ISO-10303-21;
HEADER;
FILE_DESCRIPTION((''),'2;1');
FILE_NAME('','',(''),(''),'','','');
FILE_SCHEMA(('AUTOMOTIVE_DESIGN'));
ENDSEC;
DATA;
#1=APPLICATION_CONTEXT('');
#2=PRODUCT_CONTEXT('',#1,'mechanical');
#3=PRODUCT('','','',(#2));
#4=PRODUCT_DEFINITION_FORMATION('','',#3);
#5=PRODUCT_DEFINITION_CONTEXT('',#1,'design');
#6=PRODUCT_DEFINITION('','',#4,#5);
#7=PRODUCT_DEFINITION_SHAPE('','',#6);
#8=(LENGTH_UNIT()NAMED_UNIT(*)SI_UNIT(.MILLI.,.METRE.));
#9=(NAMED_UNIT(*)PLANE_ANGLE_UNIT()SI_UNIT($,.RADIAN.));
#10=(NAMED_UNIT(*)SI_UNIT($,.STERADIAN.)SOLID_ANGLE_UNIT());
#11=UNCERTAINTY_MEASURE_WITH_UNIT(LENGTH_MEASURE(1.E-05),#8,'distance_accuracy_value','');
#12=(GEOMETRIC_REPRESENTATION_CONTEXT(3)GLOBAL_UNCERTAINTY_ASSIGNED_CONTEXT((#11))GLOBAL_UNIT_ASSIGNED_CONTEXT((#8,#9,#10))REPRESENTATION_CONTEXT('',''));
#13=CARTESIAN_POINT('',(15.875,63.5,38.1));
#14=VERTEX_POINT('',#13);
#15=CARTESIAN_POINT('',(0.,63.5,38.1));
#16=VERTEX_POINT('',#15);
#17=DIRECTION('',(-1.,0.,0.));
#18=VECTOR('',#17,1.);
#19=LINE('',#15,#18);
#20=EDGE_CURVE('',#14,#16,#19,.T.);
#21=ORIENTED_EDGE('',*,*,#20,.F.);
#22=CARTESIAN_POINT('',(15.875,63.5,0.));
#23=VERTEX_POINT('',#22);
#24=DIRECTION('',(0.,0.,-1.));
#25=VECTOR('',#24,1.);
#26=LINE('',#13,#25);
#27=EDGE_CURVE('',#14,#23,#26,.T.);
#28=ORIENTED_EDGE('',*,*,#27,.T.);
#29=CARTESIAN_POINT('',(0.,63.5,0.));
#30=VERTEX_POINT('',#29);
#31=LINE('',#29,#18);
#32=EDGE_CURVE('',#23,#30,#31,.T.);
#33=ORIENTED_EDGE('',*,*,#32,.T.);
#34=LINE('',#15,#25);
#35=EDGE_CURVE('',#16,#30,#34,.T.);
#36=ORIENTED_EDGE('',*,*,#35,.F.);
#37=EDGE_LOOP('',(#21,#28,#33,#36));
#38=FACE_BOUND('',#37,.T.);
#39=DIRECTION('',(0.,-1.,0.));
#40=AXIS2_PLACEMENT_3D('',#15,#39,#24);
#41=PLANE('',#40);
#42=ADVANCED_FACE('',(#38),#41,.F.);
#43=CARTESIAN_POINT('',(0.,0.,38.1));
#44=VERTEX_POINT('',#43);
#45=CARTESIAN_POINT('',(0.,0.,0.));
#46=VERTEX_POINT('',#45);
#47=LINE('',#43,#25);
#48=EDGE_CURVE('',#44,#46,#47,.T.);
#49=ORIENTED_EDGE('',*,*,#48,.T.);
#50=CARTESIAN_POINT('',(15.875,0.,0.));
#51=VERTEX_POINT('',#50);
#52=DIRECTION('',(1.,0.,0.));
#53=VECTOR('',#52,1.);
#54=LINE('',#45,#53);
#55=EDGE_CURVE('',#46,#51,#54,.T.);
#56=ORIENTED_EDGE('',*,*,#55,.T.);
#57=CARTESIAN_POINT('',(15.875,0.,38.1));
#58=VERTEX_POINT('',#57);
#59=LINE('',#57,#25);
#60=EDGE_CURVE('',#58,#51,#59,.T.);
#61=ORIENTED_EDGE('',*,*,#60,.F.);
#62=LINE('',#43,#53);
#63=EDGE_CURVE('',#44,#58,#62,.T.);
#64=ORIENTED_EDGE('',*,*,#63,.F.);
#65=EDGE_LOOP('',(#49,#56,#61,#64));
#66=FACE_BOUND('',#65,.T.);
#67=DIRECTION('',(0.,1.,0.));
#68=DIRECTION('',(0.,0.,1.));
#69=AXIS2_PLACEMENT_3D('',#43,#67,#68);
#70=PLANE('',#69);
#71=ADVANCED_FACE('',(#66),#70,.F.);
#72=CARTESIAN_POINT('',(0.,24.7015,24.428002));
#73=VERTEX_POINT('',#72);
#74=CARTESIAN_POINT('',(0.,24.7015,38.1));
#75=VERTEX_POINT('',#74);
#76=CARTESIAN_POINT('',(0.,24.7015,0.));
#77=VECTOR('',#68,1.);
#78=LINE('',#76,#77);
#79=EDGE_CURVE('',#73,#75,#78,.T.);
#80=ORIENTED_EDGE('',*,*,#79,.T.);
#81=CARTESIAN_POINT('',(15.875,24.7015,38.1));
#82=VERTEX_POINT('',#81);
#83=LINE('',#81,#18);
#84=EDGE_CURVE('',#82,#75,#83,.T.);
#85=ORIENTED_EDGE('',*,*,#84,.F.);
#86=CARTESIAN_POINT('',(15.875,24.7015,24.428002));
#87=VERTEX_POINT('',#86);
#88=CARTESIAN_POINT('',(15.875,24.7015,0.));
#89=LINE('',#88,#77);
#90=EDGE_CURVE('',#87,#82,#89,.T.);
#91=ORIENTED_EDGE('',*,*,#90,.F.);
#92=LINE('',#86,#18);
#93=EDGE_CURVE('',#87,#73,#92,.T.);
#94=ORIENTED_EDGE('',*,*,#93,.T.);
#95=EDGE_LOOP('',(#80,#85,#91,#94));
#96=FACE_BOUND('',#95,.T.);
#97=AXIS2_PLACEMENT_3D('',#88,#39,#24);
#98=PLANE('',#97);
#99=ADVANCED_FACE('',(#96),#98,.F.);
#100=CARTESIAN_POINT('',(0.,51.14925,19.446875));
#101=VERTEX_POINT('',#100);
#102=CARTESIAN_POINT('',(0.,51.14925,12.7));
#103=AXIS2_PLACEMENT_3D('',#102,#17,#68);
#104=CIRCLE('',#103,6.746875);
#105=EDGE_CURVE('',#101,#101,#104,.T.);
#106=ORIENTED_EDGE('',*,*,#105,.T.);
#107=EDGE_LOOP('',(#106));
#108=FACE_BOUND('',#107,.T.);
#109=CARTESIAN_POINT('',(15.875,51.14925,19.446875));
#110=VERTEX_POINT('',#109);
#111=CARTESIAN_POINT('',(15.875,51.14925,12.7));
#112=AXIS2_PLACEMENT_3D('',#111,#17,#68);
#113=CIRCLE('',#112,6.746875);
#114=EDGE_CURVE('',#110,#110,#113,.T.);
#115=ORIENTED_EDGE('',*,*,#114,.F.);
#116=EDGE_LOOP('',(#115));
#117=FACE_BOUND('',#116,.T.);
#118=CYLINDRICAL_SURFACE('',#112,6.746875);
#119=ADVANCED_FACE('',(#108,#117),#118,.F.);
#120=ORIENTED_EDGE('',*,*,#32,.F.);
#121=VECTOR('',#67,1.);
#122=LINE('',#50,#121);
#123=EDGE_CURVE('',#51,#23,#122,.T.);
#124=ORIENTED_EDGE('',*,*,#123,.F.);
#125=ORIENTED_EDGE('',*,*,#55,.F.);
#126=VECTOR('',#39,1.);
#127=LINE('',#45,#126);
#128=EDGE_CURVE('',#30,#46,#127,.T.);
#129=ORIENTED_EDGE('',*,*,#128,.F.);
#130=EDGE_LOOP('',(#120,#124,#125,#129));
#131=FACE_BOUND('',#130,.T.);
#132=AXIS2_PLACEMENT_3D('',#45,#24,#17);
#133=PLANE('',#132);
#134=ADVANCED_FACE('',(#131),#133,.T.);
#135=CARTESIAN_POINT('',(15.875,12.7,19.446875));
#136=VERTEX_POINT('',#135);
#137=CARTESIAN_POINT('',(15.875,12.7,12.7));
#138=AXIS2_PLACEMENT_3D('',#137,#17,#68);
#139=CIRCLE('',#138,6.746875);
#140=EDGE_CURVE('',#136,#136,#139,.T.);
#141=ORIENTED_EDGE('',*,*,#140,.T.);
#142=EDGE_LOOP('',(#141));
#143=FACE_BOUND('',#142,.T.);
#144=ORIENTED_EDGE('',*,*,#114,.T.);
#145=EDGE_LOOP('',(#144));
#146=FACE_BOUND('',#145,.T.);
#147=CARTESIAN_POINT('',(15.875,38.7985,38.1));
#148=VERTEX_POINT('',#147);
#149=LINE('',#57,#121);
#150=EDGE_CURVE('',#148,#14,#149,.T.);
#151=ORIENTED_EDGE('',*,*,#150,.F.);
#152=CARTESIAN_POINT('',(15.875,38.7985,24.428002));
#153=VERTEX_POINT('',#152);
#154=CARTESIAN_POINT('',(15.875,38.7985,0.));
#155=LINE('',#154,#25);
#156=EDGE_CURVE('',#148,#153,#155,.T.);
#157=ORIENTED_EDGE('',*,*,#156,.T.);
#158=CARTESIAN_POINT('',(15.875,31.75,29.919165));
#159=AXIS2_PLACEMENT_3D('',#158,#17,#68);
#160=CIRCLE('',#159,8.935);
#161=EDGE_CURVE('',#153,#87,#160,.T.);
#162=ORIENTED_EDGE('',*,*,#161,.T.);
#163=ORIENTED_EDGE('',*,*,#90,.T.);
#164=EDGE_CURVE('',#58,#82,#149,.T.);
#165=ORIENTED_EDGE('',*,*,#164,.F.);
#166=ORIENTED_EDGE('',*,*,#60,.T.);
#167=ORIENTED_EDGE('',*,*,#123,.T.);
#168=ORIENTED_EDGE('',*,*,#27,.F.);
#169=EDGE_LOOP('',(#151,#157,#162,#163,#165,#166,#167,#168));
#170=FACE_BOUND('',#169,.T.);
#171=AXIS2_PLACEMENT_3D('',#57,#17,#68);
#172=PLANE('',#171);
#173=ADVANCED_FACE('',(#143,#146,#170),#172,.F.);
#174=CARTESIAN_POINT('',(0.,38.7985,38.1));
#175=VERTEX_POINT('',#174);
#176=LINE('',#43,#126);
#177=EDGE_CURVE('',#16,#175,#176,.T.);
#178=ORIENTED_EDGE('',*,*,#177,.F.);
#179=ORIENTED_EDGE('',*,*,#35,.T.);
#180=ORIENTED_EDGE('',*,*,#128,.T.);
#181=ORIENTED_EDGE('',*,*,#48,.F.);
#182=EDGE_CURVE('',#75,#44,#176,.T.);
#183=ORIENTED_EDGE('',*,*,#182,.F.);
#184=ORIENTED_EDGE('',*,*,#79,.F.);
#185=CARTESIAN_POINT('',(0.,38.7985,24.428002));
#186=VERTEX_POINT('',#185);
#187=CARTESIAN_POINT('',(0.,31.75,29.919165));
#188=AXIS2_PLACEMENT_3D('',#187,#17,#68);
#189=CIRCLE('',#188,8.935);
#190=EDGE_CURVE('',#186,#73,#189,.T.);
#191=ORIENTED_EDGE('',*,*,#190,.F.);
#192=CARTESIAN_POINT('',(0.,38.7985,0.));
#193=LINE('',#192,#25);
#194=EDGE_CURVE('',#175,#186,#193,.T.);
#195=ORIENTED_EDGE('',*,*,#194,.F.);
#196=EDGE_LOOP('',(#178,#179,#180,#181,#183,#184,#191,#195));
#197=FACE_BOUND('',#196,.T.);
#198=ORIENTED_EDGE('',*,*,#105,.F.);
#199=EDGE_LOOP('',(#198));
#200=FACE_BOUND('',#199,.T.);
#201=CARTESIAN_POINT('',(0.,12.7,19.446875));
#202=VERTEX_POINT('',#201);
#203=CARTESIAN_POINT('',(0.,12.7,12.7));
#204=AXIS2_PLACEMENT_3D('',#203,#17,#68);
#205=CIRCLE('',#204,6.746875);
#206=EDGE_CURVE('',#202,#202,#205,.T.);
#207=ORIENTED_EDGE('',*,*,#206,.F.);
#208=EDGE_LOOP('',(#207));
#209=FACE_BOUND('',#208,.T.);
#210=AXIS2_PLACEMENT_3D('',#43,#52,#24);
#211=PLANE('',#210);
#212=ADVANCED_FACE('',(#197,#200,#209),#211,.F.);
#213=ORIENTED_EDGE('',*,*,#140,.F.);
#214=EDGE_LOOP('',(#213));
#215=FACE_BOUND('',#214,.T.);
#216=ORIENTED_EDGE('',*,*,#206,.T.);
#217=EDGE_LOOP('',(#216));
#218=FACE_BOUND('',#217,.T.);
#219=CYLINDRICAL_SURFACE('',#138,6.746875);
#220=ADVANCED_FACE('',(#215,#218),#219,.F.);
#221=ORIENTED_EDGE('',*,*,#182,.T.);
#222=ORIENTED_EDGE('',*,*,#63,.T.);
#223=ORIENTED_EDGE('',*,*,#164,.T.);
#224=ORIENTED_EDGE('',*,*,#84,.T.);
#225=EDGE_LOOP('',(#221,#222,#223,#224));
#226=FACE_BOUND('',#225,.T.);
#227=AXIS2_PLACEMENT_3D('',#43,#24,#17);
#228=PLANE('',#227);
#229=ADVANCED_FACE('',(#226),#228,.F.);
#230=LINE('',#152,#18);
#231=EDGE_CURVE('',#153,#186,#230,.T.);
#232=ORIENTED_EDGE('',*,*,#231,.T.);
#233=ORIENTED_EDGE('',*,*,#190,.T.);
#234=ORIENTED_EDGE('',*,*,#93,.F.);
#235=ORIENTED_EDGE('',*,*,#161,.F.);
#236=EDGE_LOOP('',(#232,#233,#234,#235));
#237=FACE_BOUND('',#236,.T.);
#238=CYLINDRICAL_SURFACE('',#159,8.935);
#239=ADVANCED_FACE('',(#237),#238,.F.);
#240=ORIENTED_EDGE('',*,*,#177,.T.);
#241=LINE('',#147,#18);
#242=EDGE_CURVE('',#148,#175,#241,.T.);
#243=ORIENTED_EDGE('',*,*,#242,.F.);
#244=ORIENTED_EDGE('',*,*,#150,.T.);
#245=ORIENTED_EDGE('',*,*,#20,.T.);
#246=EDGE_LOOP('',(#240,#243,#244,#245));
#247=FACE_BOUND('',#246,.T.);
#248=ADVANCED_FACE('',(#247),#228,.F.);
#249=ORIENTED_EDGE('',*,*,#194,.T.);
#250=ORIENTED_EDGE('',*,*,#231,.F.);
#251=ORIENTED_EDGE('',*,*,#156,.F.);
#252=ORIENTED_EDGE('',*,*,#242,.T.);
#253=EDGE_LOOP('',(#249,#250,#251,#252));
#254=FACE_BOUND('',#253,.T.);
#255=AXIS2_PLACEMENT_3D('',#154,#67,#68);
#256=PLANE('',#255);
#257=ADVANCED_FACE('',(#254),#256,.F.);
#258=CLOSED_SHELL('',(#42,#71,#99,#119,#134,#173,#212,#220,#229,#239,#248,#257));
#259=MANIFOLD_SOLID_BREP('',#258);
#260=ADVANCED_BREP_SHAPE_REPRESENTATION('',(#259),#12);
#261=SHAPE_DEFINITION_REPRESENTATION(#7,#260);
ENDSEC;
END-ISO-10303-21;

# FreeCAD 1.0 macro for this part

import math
import FreeCAD as App
import Part
import Sketcher
Q = App.Units.Quantity


def add_polygon(sketch, points):
    """Adds a closed chain of lines whose ends are joined by coincident constraints."""
    first, n = sketch.GeometryCount, len(points)
    for a, b in zip(points, points[1:] + points[:1]):
        sketch.addGeometry(Part.LineSegment(App.Vector(*a, 0), App.Vector(*b, 0)), False)
    for i in range(n):
        sketch.addConstraint(Sketcher.Constraint("Coincident", first + i, 2, first + (i + 1) % n, 1))

doc = App.newDocument("Part")
body = doc.addObject("PartDesign::Body", "Body")

sketch1 = doc.addObject("Sketcher::SketchObject", "Sketch")
body.addObject(sketch1)
sketch1.AttachmentSupport = (doc.XY_Plane, [""])
sketch1.MapMode = "FlatFace"
add_polygon(sketch1, [(0, 64), (0, 0), (16, 0), (16, 64)])
sketch1.addConstraint(Sketcher.Constraint("Vertical", 0))
sketch1.addConstraint(Sketcher.Constraint("Horizontal", 1))
sketch1.addConstraint(Sketcher.Constraint("Vertical", 2))
sketch1.addConstraint(Sketcher.Constraint("Horizontal", 3))
sketch1.addConstraint(Sketcher.Constraint("Coincident", 0, 2, -1, 1))
sketch1.addConstraint(Sketcher.Constraint("DistanceY", 0, 2, 0, 1, Q("2.5 in")))
sketch1.addConstraint(Sketcher.Constraint("DistanceX", 1, 1, 1, 2, Q("0.625 in")))
pad1 = doc.addObject("PartDesign::Pad", "Pad")
body.addObject(pad1)
pad1.Profile = sketch1
pad1.Length = Q("1.5 in")

sketch2 = doc.addObject("Sketcher::SketchObject", "Sketch001")
body.addObject(sketch2)
sketch2.AttachmentSupport = (doc.YZ_Plane, [""])
sketch2.MapMode = "FlatFace"
sketch2.addGeometry(Part.ArcOfCircle(Part.Circle(App.Vector(32, 30, 0), App.Vector(0, 0, 1), 9), math.radians(-142), math.radians(-38)), False)
sketch2.addGeometry(Part.LineSegment(App.Vector(25, 24, 0), App.Vector(25, 38, 0)), False)
sketch2.addGeometry(Part.LineSegment(App.Vector(25, 38, 0), App.Vector(39, 38, 0)), False)
sketch2.addGeometry(Part.LineSegment(App.Vector(39, 38, 0), App.Vector(39, 24, 0)), False)
sketch2.addConstraint(Sketcher.Constraint("Coincident", 0, 1, 1, 1))
sketch2.addConstraint(Sketcher.Constraint("Coincident", 1, 2, 2, 1))
sketch2.addConstraint(Sketcher.Constraint("Coincident", 2, 2, 3, 1))
sketch2.addConstraint(Sketcher.Constraint("Coincident", 3, 2, 0, 2))
sketch2.addConstraint(Sketcher.Constraint("Vertical", 1))
sketch2.addConstraint(Sketcher.Constraint("Horizontal", 2))
sketch2.addConstraint(Sketcher.Constraint("Vertical", 3))
sketch2.addConstraint(Sketcher.Constraint("Horizontal", 0, 1, 3, 2))
sketch2.addConstraint(Sketcher.Constraint("DistanceY", -1, 1, 1, 2, Q("1.5 in")))
sketch2.addConstraint(Sketcher.Constraint("DistanceX", 2, 1, 2, 2, Q("0.555 in")))
sketch2.addConstraint(Sketcher.Constraint("DistanceX", -1, 1, 0, 3, Q("1.25 in")))
sketch2.addConstraint(Sketcher.Constraint("Radius", 0, 8.935))
sketch2.addConstraint(Sketcher.Constraint("DistanceY", 1, 1, 1, 2, 13.671998))
pocket1 = doc.addObject("PartDesign::Pocket", "Pocket")
body.addObject(pocket1)
pocket1.Profile = sketch2
pocket1.Type = "ThroughAll"
pocket1.Reversed = True

sketch3 = doc.addObject("Sketcher::SketchObject", "Sketch002")
body.addObject(sketch3)
sketch3.AttachmentSupport = (doc.YZ_Plane, [""])
sketch3.MapMode = "FlatFace"
sketch3.addGeometry(Part.Circle(App.Vector(51, 13, 0), App.Vector(0, 0, 1), 7), False)
sketch3.addGeometry(Part.Circle(App.Vector(13, 13, 0), App.Vector(0, 0, 1), 7), False)
sketch3.addConstraint(Sketcher.Constraint("Equal", 0, 1))
sketch3.addConstraint(Sketcher.Constraint("Horizontal", 0, 3, 1, 3))
sketch3.addConstraint(Sketcher.Constraint("Diameter", 0, Q("0.53125 in")))
sketch3.addConstraint(Sketcher.Constraint("DistanceY", -1, 1, 0, 3, Q("0.5 in")))
sketch3.addConstraint(Sketcher.Constraint("DistanceX", -1, 1, 1, 3, Q("0.5 in")))
sketch3.addConstraint(Sketcher.Constraint("DistanceX", -1, 1, 0, 3, 51.14925))
pocket2 = doc.addObject("PartDesign::Pocket", "Pocket001")
body.addObject(pocket2)
pocket2.Profile = sketch3
pocket2.Type = "ThroughAll"
pocket2.Reversed = True

doc.recompute()
